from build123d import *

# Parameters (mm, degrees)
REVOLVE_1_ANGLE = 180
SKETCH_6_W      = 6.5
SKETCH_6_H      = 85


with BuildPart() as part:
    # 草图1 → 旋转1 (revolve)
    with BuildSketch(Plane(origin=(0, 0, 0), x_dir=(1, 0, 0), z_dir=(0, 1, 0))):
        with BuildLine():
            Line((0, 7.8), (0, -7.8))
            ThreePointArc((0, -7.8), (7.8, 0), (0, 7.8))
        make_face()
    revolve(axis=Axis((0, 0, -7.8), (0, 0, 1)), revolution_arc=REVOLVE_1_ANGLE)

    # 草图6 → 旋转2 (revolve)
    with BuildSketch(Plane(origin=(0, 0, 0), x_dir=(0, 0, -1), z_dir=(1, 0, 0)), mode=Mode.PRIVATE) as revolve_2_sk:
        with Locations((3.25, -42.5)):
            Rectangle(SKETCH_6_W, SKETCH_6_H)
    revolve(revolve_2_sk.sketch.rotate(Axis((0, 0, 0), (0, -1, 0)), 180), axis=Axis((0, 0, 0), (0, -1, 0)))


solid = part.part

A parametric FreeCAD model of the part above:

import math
import FreeCAD as App
import Part
import Sketcher

V = App.Vector

doc = App.newDocument("Part")
body = doc.addObject("PartDesign::Body", "Body")

sketch1 = doc.addObject("Sketcher::SketchObject", "Sketch")
body.addObject(sketch1)
sketch1.AttachmentSupport = (doc.XZ_Plane, [""])
sketch1.MapMode = "FlatFace"
sketch1.addGeometry([
    Part.LineSegment(V(0, -8, 0), V(0, 8, 0)),
    Part.ArcOfCircle(Part.Circle(V(0, 0, 0), V(0, 0, 1), 8), math.radians(-90), math.radians(90)),
], False)
sketch1.addConstraint([
    Sketcher.Constraint("Coincident", 0, 1, 1, 1),
    Sketcher.Constraint("Coincident", 1, 2, 0, 2),
    Sketcher.Constraint("Vertical", 0),
    Sketcher.Constraint("Coincident", 1, 3, -1, 1),
    Sketcher.Constraint("PointOnObject", 0, 1, -2),
    Sketcher.Constraint("Radius", 1, 7.8),
])
revolution = doc.addObject("PartDesign::Revolution", "Revolution")
body.addObject(revolution)
revolution.Profile = sketch1
revolution.ReferenceAxis = (sketch1, ["V_Axis"])
revolution.Angle = 180

sketch2 = doc.addObject("Sketcher::SketchObject", "Sketch001")
body.addObject(sketch2)
sketch2.AttachmentSupport = (doc.YZ_Plane, [""])
sketch2.MapMode = "FlatFace"
sketch2.addGeometry([
    Part.LineSegment(V(0, 0, 0), V(-85, 0, 0)),
    Part.LineSegment(V(-85, 0, 0), V(-85, -6, 0)),
    Part.LineSegment(V(-85, -6, 0), V(0, -6, 0)),
    Part.LineSegment(V(0, -6, 0), V(0, 0, 0)),
], False)
sketch2.addConstraint([
    Sketcher.Constraint("Coincident", 0, 2, 1, 1),
    Sketcher.Constraint("Coincident", 1, 2, 2, 1),
    Sketcher.Constraint("Coincident", 2, 2, 3, 1),
    Sketcher.Constraint("Coincident", 3, 2, 0, 1),
    Sketcher.Constraint("Horizontal", 0),
    Sketcher.Constraint("Vertical", 1),
    Sketcher.Constraint("Horizontal", 2),
    Sketcher.Constraint("Vertical", 3),
    Sketcher.Constraint("Coincident", 3, 2, -1, 1),
    Sketcher.Constraint("DistanceX", 0, 2, 0, 1, 85.0),
    Sketcher.Constraint("DistanceY", 1, 2, 1, 1, 6.5),
])
revolution2 = doc.addObject("PartDesign::Revolution", "Revolution001")
body.addObject(revolution2)
revolution2.Profile = sketch2
revolution2.ReferenceAxis = (sketch2, ["H_Axis"])
revolution2.Angle = 360

doc.recompute()
